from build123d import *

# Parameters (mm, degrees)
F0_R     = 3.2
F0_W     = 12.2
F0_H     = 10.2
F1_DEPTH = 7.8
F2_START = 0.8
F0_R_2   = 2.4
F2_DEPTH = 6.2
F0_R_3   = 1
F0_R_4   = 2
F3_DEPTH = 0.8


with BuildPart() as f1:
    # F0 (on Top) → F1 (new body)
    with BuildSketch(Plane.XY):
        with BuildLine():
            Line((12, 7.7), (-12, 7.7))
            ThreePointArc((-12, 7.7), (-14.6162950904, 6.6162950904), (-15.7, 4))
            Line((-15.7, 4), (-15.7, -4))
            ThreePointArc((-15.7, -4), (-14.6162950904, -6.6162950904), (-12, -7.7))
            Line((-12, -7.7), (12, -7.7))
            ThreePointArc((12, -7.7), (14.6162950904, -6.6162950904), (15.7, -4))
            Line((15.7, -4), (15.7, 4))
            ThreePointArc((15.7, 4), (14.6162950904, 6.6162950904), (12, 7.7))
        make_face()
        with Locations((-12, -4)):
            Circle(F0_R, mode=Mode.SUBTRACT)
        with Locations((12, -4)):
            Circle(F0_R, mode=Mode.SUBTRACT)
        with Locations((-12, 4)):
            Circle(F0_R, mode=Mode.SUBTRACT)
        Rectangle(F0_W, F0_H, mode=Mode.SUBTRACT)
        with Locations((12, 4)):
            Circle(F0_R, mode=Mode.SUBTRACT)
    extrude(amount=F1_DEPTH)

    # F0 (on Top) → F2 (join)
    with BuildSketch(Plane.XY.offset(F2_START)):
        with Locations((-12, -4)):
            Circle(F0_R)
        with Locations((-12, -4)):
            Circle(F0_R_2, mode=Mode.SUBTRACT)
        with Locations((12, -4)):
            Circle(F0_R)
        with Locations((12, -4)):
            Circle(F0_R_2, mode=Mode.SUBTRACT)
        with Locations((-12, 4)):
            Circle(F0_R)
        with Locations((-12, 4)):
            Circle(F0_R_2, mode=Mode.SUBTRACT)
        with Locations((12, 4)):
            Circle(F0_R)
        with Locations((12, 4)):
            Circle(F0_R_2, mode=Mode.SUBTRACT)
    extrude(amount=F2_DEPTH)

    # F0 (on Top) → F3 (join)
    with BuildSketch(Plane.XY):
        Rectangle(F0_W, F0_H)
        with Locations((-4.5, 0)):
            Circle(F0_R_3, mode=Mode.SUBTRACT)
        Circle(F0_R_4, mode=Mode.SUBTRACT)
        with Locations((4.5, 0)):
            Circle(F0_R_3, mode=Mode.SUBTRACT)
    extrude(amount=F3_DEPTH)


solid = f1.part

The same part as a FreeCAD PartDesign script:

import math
import FreeCAD as App
import Part
import Sketcher


def add_polygon(sketch, points):
    """Adds a closed chain of lines whose ends are joined by coincident constraints."""
    first, n = sketch.GeometryCount, len(points)
    for a, b in zip(points, points[1:] + points[:1]):
        sketch.addGeometry(Part.LineSegment(App.Vector(*a, 0), App.Vector(*b, 0)), False)
    for i in range(n):
        sketch.addConstraint(Sketcher.Constraint("Coincident", first + i, 2, first + (i + 1) % n, 1))

doc = App.newDocument("Part")
body = doc.addObject("PartDesign::Body", "Body")

sketch1 = body.newObject("Sketcher::SketchObject", "Sketch")
sketch1.AttachmentSupport = (doc.getObject("XY_Plane"), [""])
sketch1.MapMode = "FlatFace"
sketch1.addGeometry(Part.LineSegment(App.Vector(12, 7.7, 0), App.Vector(-12, 7.7, 0)), False)
sketch1.addGeometry(Part.ArcOfCircle(Part.Circle(App.Vector(-12, 4, 0), App.Vector(0, 0, 1), 3.7), math.radians(90), math.radians(180)), False)
sketch1.addGeometry(Part.LineSegment(App.Vector(-15.7, 4, 0), App.Vector(-15.7, -4, 0)), False)
sketch1.addGeometry(Part.ArcOfCircle(Part.Circle(App.Vector(-12, -4, 0), App.Vector(0, 0, 1), 3.7), math.radians(180), math.radians(270)), False)
sketch1.addGeometry(Part.LineSegment(App.Vector(-12, -7.7, 0), App.Vector(12, -7.7, 0)), False)
sketch1.addGeometry(Part.ArcOfCircle(Part.Circle(App.Vector(12, -4, 0), App.Vector(0, 0, 1), 3.7), math.radians(-90), math.radians(0)), False)
sketch1.addGeometry(Part.LineSegment(App.Vector(15.7, -4, 0), App.Vector(15.7, 4, 0)), False)
sketch1.addGeometry(Part.ArcOfCircle(Part.Circle(App.Vector(12, 4, 0), App.Vector(0, 0, 1), 3.7), math.radians(0), math.radians(90)), False)
sketch1.addGeometry(Part.Circle(App.Vector(-12, -4, 0), App.Vector(0, 0, 1), 3.2), False)
sketch1.addGeometry(Part.Circle(App.Vector(12, -4, 0), App.Vector(0, 0, 1), 3.2), False)
add_polygon(sketch1, [(6.1, -5.1), (-6.1, -5.1), (-6.1, 5.1), (6.1, 5.1)])
sketch1.addGeometry(Part.Circle(App.Vector(-12, 4, 0), App.Vector(0, 0, 1), 3.2), False)
sketch1.addGeometry(Part.Circle(App.Vector(12, 4, 0), App.Vector(0, 0, 1), 3.2), False)
sketch1.addConstraint([
    Sketcher.Constraint("Tangent", 0, 2, 1, 1),
    Sketcher.Constraint("Tangent", 1, 2, 2, 1),
    Sketcher.Constraint("Tangent", 2, 2, 3, 1),
    Sketcher.Constraint("Tangent", 3, 2, 4, 1),
    Sketcher.Constraint("Tangent", 4, 2, 5, 1),
    Sketcher.Constraint("Tangent", 5, 2, 6, 1),
    Sketcher.Constraint("Tangent", 6, 2, 7, 1),
    Sketcher.Constraint("Tangent", 7, 2, 0, 1),
    Sketcher.Constraint("Horizontal", 0),
    Sketcher.Constraint("Vertical", 2),
    Sketcher.Constraint("Horizontal", 4),
    Sketcher.Constraint("Vertical", 6),
    Sketcher.Constraint("Horizontal", 10),
    Sketcher.Constraint("Vertical", 11),
    Sketcher.Constraint("Horizontal", 12),
    Sketcher.Constraint("Vertical", 13),
    Sketcher.Constraint("Coincident", 8, 3, 3, 3),
    Sketcher.Constraint("Coincident", 9, 3, 5, 3),
    Sketcher.Constraint("Coincident", 14, 3, 1, 3),
    Sketcher.Constraint("Coincident", 15, 3, 7, 3),
    Sketcher.Constraint("Equal", 1, 3),
    Sketcher.Constraint("Equal", 3, 5),
    Sketcher.Constraint("Equal", 5, 7),
    Sketcher.Constraint("Equal", 8, 9),
    Sketcher.Constraint("Equal", 9, 14),
    Sketcher.Constraint("Equal", 14, 15),
    Sketcher.Constraint("Symmetric", 1, 3, 5, 3, -1, 1),
    Sketcher.Constraint("Symmetric", 10, 2, 12, 2, -1, 1),
    Sketcher.Constraint("Diameter", 8, 6.4),
    Sketcher.Constraint("Radius", 1, 3.7),
    Sketcher.Constraint("DistanceX", 0, 2, 0, 1, 24.0),
    Sketcher.Constraint("DistanceY", 2, 2, 2, 1, 8.0),
    Sketcher.Constraint("DistanceX", 10, 2, 10, 1, 12.2),
    Sketcher.Constraint("DistanceY", 11, 1, 11, 2, 10.2),
])
pad1 = body.newObject("PartDesign::Pad", "Pad")
pad1.Profile = sketch1
pad1.Length = 7.8

sketch2 = body.newObject("Sketcher::SketchObject", "Sketch001")
sketch2.AttachmentSupport = (doc.getObject("XY_Plane"), [""])
sketch2.MapMode = "FlatFace"
sketch2.AttachmentOffset = App.Placement(App.Vector(0, 0, 0.8), App.Rotation())
sketch2.addGeometry([
    Part.Circle(App.Vector(-12, -4, 0), App.Vector(0, 0, 1), 3.2),
    Part.Circle(App.Vector(-12, -4, 0), App.Vector(0, 0, 1), 2.4),
    Part.Circle(App.Vector(12, -4, 0), App.Vector(0, 0, 1), 3.2),
    Part.Circle(App.Vector(12, -4, 0), App.Vector(0, 0, 1), 2.4),
    Part.Circle(App.Vector(-12, 4, 0), App.Vector(0, 0, 1), 3.2),
    Part.Circle(App.Vector(-12, 4, 0), App.Vector(0, 0, 1), 2.4),
    Part.Circle(App.Vector(12, 4, 0), App.Vector(0, 0, 1), 3.2),
    Part.Circle(App.Vector(12, 4, 0), App.Vector(0, 0, 1), 2.4),
], False)
sketch2.addConstraint([
    Sketcher.Constraint("Coincident", 1, 3, 0, 3),
    Sketcher.Constraint("Coincident", 3, 3, 2, 3),
    Sketcher.Constraint("Coincident", 5, 3, 4, 3),
    Sketcher.Constraint("Coincident", 7, 3, 6, 3),
    Sketcher.Constraint("Equal", 0, 2),
    Sketcher.Constraint("Equal", 1, 3),
    Sketcher.Constraint("Equal", 2, 4),
    Sketcher.Constraint("Equal", 3, 5),
    Sketcher.Constraint("Equal", 4, 6),
    Sketcher.Constraint("Equal", 5, 7),
    Sketcher.Constraint("Symmetric", 2, 3, 4, 3, -1, 1),
    Sketcher.Constraint("Symmetric", 0, 3, 6, 3, -1, 1),
    Sketcher.Constraint("Symmetric", 0, 3, 2, 3, -2),
    Sketcher.Constraint("Diameter", 0, 6.4),
    Sketcher.Constraint("Diameter", 1, 4.8),
    Sketcher.Constraint("DistanceX", 0, 3, -1, 1, 12.0),
    Sketcher.Constraint("DistanceY", 0, 3, -1, 1, 4.0),
])
pad2 = body.newObject("PartDesign::Pad", "Pad001")
pad2.Profile = sketch2
pad2.Length = 6.2

sketch3 = body.newObject("Sketcher::SketchObject", "Sketch002")
sketch3.AttachmentSupport = (doc.getObject("XY_Plane"), [""])
sketch3.MapMode = "FlatFace"
add_polygon(sketch3, [(-6.1, 5.1), (-6.1, -5.1), (6.1, -5.1), (6.1, 5.1)])
sketch3.addGeometry(Part.Circle(App.Vector(-4.5, 0, 0), App.Vector(0, 0, 1), 1), False)
sketch3.addGeometry(Part.Circle(App.Vector(0, 0, 0), App.Vector(0, 0, 1), 2), False)
sketch3.addGeometry(Part.Circle(App.Vector(4.5, 0, 0), App.Vector(0, 0, 1), 1), False)
sketch3.addConstraint([
    Sketcher.Constraint("Vertical", 0),
    Sketcher.Constraint("Horizontal", 1),
    Sketcher.Constraint("Vertical", 2),
    Sketcher.Constraint("Horizontal", 3),
    Sketcher.Constraint("Coincident", 5, 3, -1, 1),
    Sketcher.Constraint("Equal", 4, 6),
    Sketcher.Constraint("Symmetric", 4, 3, 6, 3, -1, 1),
    Sketcher.Constraint("Symmetric", 0, 2, 2, 2, -1, 1),
    Sketcher.Constraint("PointOnObject", 4, 3, -1),
    Sketcher.Constraint("Diameter", 4, 2.0),
    Sketcher.Constraint("Diameter", 5, 4.0),
    Sketcher.Constraint("DistanceX", 1, 1, 1, 2, 12.2),
    Sketcher.Constraint("DistanceY", 0, 2, 0, 1, 10.2),
    Sketcher.Constraint("DistanceX", 4, 3, 6, 3, 9.0),
])
pad3 = body.newObject("PartDesign::Pad", "Pad002")
pad3.Profile = sketch3
pad3.Length = 0.8

doc.recompute()
